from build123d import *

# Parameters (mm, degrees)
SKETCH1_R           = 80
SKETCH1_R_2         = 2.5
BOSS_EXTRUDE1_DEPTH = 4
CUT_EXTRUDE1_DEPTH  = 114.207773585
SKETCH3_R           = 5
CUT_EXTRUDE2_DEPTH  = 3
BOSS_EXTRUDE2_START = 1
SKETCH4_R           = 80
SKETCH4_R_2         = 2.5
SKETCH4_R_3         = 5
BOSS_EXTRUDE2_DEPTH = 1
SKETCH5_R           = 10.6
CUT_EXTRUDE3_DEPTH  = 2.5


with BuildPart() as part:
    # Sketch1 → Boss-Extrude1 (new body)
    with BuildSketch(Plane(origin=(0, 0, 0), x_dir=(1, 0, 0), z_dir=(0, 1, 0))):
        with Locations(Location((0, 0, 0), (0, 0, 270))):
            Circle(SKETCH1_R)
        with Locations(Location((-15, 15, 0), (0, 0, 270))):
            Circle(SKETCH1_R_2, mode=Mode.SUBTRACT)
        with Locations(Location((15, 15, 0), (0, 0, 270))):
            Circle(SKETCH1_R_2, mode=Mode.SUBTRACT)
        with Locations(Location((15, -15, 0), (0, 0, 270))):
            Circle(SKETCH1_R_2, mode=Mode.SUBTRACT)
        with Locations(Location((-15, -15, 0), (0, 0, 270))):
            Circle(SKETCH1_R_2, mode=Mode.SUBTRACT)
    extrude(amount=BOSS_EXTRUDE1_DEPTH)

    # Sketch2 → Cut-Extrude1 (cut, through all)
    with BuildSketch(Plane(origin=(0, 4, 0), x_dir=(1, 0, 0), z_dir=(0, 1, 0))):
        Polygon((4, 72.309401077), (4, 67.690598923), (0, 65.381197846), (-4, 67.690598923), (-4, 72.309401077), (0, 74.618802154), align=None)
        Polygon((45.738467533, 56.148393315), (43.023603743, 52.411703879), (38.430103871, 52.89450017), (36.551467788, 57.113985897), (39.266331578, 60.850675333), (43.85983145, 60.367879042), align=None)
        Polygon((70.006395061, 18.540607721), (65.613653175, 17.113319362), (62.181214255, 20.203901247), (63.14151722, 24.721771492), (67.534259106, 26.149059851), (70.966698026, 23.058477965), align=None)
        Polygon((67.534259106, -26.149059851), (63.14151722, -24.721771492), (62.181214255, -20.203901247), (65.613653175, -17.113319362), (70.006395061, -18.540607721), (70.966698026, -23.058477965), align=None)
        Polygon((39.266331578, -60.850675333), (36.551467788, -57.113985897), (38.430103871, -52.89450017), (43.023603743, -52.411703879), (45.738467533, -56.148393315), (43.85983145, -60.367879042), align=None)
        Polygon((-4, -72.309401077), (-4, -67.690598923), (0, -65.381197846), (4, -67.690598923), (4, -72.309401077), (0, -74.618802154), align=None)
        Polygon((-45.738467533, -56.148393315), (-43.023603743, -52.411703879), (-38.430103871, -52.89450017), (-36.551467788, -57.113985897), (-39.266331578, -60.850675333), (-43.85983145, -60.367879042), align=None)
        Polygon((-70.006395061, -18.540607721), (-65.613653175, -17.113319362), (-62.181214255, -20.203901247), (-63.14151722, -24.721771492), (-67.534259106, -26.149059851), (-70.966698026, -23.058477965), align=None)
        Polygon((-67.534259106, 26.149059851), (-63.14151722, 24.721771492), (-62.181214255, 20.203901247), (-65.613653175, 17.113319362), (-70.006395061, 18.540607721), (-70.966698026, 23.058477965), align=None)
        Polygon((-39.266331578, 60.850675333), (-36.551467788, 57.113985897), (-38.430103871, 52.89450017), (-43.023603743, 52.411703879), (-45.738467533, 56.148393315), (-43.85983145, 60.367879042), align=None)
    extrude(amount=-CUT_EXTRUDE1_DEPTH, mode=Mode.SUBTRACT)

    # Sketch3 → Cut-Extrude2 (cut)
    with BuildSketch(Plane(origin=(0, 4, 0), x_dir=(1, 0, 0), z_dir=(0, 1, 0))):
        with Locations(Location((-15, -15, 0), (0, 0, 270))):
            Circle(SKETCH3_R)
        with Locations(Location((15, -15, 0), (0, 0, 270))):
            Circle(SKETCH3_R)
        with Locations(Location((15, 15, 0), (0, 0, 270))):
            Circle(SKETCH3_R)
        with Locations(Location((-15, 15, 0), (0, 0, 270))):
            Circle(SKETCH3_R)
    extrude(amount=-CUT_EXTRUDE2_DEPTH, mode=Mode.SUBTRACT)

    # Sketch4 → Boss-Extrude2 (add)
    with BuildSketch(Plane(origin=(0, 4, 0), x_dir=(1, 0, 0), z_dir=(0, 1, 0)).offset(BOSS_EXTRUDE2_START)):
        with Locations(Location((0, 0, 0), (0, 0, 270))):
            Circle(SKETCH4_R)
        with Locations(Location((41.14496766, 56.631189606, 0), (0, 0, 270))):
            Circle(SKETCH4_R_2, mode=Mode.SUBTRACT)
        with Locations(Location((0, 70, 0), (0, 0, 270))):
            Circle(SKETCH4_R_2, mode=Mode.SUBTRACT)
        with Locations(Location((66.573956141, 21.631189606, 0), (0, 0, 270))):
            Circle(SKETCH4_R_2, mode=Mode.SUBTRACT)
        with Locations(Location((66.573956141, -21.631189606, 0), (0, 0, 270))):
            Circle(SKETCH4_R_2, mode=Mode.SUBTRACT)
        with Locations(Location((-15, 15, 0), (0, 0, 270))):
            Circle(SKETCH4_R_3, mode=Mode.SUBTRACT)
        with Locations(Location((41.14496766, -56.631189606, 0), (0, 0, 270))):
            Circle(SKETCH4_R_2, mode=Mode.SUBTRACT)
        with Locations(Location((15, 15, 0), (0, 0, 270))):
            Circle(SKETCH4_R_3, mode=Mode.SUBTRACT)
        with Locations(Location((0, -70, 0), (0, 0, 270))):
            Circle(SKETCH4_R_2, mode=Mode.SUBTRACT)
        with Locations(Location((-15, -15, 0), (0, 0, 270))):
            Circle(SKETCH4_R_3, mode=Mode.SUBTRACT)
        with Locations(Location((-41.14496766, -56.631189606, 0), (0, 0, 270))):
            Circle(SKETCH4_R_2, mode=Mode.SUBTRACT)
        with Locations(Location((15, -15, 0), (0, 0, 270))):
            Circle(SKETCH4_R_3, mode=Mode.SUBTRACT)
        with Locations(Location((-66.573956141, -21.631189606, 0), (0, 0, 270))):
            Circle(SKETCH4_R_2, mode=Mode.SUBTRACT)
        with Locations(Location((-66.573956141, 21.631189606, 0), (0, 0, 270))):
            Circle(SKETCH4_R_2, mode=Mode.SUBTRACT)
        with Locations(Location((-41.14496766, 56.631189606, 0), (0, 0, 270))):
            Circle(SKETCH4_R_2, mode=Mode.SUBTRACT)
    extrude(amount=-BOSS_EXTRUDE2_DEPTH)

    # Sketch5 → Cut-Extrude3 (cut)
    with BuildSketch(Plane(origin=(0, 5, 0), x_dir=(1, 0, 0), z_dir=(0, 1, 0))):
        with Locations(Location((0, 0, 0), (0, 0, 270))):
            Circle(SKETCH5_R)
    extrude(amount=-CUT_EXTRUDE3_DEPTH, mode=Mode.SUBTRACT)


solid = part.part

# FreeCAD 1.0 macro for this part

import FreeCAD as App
import Part
import Sketcher
from FreeCAD import Vector
Q = App.Units.Quantity


def add_polygon(sketch, points):
    """Adds a closed chain of lines whose ends are joined by coincident constraints."""
    first, n = sketch.GeometryCount, len(points)
    for a, b in zip(points, points[1:] + points[:1]):
        sketch.addGeometry(Part.LineSegment(App.Vector(*a, 0), App.Vector(*b, 0)), False)
    for i in range(n):
        sketch.addConstraint(Sketcher.Constraint("Coincident", first + i, 2, first + (i + 1) % n, 1))

doc = App.newDocument("Part")
body = doc.addObject("PartDesign::Body", "Body")

# Sketch on XZ plane
sketch1 = body.newObject("Sketcher::SketchObject", "Sketch")
sketch1.AttachmentSupport = (doc.getObject("XZ_Plane"), [""])
sketch1.MapMode = "FlatFace"
sketch1.addGeometry(Part.Circle(Vector(0, 0, 0), Vector(0, 0, 1), 80), False)
sketch1.addGeometry(Part.Circle(Vector(-15, -15, 0), Vector(0, 0, 1), 2.5), False)
sketch1.addGeometry(Part.Circle(Vector(-15, 15, 0), Vector(0, 0, 1), 2.5), False)
sketch1.addGeometry(Part.Circle(Vector(15, -15, 0), Vector(0, 0, 1), 2.5), False)
sketch1.addGeometry(Part.Circle(Vector(15, 15, 0), Vector(0, 0, 1), 2.5), False)
sketch1.addConstraint(Sketcher.Constraint("Coincident", 0, 3, -1, 1))
sketch1.addConstraint(Sketcher.Constraint("Equal", 1, 2))
sketch1.addConstraint(Sketcher.Constraint("Equal", 2, 3))
sketch1.addConstraint(Sketcher.Constraint("Equal", 3, 4))
sketch1.addConstraint(Sketcher.Constraint("Symmetric", 2, 3, 3, 3, -1, 1))
sketch1.addConstraint(Sketcher.Constraint("Symmetric", 1, 3, 4, 3, -1, 1))
sketch1.addConstraint(Sketcher.Constraint("Symmetric", 1, 3, 3, 3, -2))
sketch1.addConstraint(Sketcher.Constraint("Diameter", 0, 160.0))
sketch1.addConstraint(Sketcher.Constraint("Diameter", 1, 5.0))
sketch1.addConstraint(Sketcher.Constraint("DistanceX", 1, 3, -1, 1, 15.0))
sketch1.addConstraint(Sketcher.Constraint("DistanceY", 1, 3, -1, 1, 15.0))
pad1 = body.newObject("PartDesign::Pad", "Pad")
pad1.Profile = sketch1
pad1.Length = 4
pad1.Reversed = True

# Sketch on XZ plane
sketch2 = body.newObject("Sketcher::SketchObject", "Sketch001")
sketch2.AttachmentSupport = (doc.getObject("XZ_Plane"), [""])
sketch2.MapMode = "FlatFace"
sketch2.AttachmentOffset = App.Placement(Vector(0, 0, -4), App.Rotation())
add_polygon(sketch2, [(4, -67.690599), (4, -72.309401), (0, -74.618802), (-4, -72.309401), (-4, -67.690599), (0, -65.381198)])  # lines 0-5
add_polygon(sketch2, [(43.023604, -52.411704), (45.738468, -56.148393), (43.859831, -60.367879), (39.266332, -60.850675), (36.551468, -57.113986), (38.430104, -52.8945)])  # lines 6-11
add_polygon(sketch2, [(65.613653, -17.113319), (70.006395, -18.540608), (70.966698, -23.058478), (67.534259, -26.14906), (63.141517, -24.721771), (62.181214, -20.203901)])  # lines 12-17
add_polygon(sketch2, [(63.141517, 24.721771), (67.534259, 26.14906), (70.966698, 23.058478), (70.006395, 18.540608), (65.613653, 17.113319), (62.181214, 20.203901)])  # lines 18-23
add_polygon(sketch2, [(36.551468, 57.113986), (39.266332, 60.850675), (43.859831, 60.367879), (45.738468, 56.148393), (43.023604, 52.411704), (38.430104, 52.8945)])  # lines 24-29
add_polygon(sketch2, [(-4, 67.690599), (-4, 72.309401), (0, 74.618802), (4, 72.309401), (4, 67.690599), (0, 65.381198)])  # lines 30-35
add_polygon(sketch2, [(-43.023604, 52.411704), (-45.738468, 56.148393), (-43.859831, 60.367879), (-39.266332, 60.850675), (-36.551468, 57.113986), (-38.430104, 52.8945)])  # lines 36-41
add_polygon(sketch2, [(-65.613653, 17.113319), (-70.006395, 18.540608), (-70.966698, 23.058478), (-67.534259, 26.14906), (-63.141517, 24.721771), (-62.181214, 20.203901)])  # lines 42-47
add_polygon(sketch2, [(-63.141517, -24.721771), (-67.534259, -26.14906), (-70.966698, -23.058478), (-70.006395, -18.540608), (-65.613653, -17.113319), (-62.181214, -20.203901)])  # lines 48-53
add_polygon(sketch2, [(-36.551468, -57.113986), (-39.266332, -60.850675), (-43.859831, -60.367879), (-45.738468, -56.148393), (-43.023604, -52.411704), (-38.430104, -52.8945)])  # lines 54-59
sketch2.addConstraint(Sketcher.Constraint("Vertical", 0))
sketch2.addConstraint(Sketcher.Constraint("Vertical", 3))
sketch2.addConstraint(Sketcher.Constraint("Vertical", 30))
sketch2.addConstraint(Sketcher.Constraint("Vertical", 33))
sketch2.addConstraint(Sketcher.Constraint("Symmetric", 0, 2, 30, 2, -1, 1))
sketch2.addConstraint(Sketcher.Constraint("Symmetric", 1, 2, 31, 2, -1, 1))
sketch2.addConstraint(Sketcher.Constraint("Symmetric", 2, 2, 32, 2, -1, 1))
sketch2.addConstraint(Sketcher.Constraint("Symmetric", 4, 2, 34, 2, -1, 1))
sketch2.addConstraint(Sketcher.Constraint("Symmetric", 6, 2, 36, 2, -1, 1))
sketch2.addConstraint(Sketcher.Constraint("Symmetric", 7, 2, 37, 2, -1, 1))
sketch2.addConstraint(Sketcher.Constraint("Symmetric", 8, 2, 38, 2, -1, 1))
sketch2.addConstraint(Sketcher.Constraint("Symmetric", 9, 2, 39, 2, -1, 1))
sketch2.addConstraint(Sketcher.Constraint("Symmetric", 10, 2, 40, 2, -1, 1))
sketch2.addConstraint(Sketcher.Constraint("Symmetric", 11, 2, 41, 2, -1, 1))
sketch2.addConstraint(Sketcher.Constraint("Symmetric", 12, 2, 42, 2, -1, 1))
sketch2.addConstraint(Sketcher.Constraint("Symmetric", 13, 2, 43, 2, -1, 1))
sketch2.addConstraint(Sketcher.Constraint("Symmetric", 14, 2, 44, 2, -1, 1))
sketch2.addConstraint(Sketcher.Constraint("Symmetric", 15, 2, 45, 2, -1, 1))
sketch2.addConstraint(Sketcher.Constraint("Symmetric", 16, 2, 46, 2, -1, 1))
sketch2.addConstraint(Sketcher.Constraint("Symmetric", 17, 2, 47, 2, -1, 1))
sketch2.addConstraint(Sketcher.Constraint("Symmetric", 18, 2, 48, 2, -1, 1))
sketch2.addConstraint(Sketcher.Constraint("Symmetric", 19, 2, 49, 2, -1, 1))
sketch2.addConstraint(Sketcher.Constraint("Symmetric", 20, 2, 50, 2, -1, 1))
sketch2.addConstraint(Sketcher.Constraint("Symmetric", 21, 2, 51, 2, -1, 1))
sketch2.addConstraint(Sketcher.Constraint("Symmetric", 22, 2, 52, 2, -1, 1))
sketch2.addConstraint(Sketcher.Constraint("Symmetric", 23, 2, 53, 2, -1, 1))
sketch2.addConstraint(Sketcher.Constraint("Symmetric", 24, 2, 54, 2, -1, 1))
sketch2.addConstraint(Sketcher.Constraint("Symmetric", 25, 2, 55, 2, -1, 1))
sketch2.addConstraint(Sketcher.Constraint("Symmetric", 26, 2, 56, 2, -1, 1))
sketch2.addConstraint(Sketcher.Constraint("Symmetric", 27, 2, 57, 2, -1, 1))
sketch2.addConstraint(Sketcher.Constraint("Symmetric", 28, 2, 58, 2, -1, 1))
sketch2.addConstraint(Sketcher.Constraint("Symmetric", 29, 2, 59, 2, -1, 1))
sketch2.addConstraint(Sketcher.Constraint("Symmetric", 0, 2, 2, 2, -2))
sketch2.addConstraint(Sketcher.Constraint("Symmetric", 26, 2, 36, 2, -2))
sketch2.addConstraint(Sketcher.Constraint("Symmetric", 25, 2, 37, 2, -2))
sketch2.addConstraint(Sketcher.Constraint("Symmetric", 24, 2, 38, 2, -2))
sketch2.addConstraint(Sketcher.Constraint("Symmetric", 29, 2, 39, 2, -2))
sketch2.addConstraint(Sketcher.Constraint("Symmetric", 28, 2, 40, 2, -2))
sketch2.addConstraint(Sketcher.Constraint("Symmetric", 27, 2, 41, 2, -2))
sketch2.addConstraint(Sketcher.Constraint("Symmetric", 20, 2, 42, 2, -2))
sketch2.addConstraint(Sketcher.Constraint("Symmetric", 19, 2, 43, 2, -2))
sketch2.addConstraint(Sketcher.Constraint("Symmetric", 18, 2, 44, 2, -2))
sketch2.addConstraint(Sketcher.Constraint("Symmetric", 23, 2, 45, 2, -2))
sketch2.addConstraint(Sketcher.Constraint("Symmetric", 22, 2, 46, 2, -2))
sketch2.addConstraint(Sketcher.Constraint("Symmetric", 21, 2, 47, 2, -2))
sketch2.addConstraint(Sketcher.Constraint("PointOnObject", 1, 2, -2))
sketch2.addConstraint(Sketcher.Constraint("PointOnObject", 4, 2, -2))
sketch2.addConstraint(Sketcher.Constraint("Parallel", 1, 4))
sketch2.addConstraint(Sketcher.Constraint("Parallel", 2, 5))
sketch2.addConstraint(Sketcher.Constraint("Parallel", 6, 9))
sketch2.addConstraint(Sketcher.Constraint("Parallel", 7, 10))
sketch2.addConstraint(Sketcher.Constraint("Parallel", 8, 11))
sketch2.addConstraint(Sketcher.Constraint("Parallel", 12, 15))
sketch2.addConstraint(Sketcher.Constraint("Parallel", 13, 16))
sketch2.addConstraint(Sketcher.Constraint("Parallel", 14, 17))
sketch2.addConstraint(Sketcher.Constraint("Parallel", 31, 34))
sketch2.addConstraint(Sketcher.Constraint("Parallel", 32, 35))
sketch2.addConstraint(Sketcher.Constraint("Equal", 5, 6))
sketch2.addConstraint(Sketcher.Constraint("Equal", 6, 7))
sketch2.addConstraint(Sketcher.Constraint("Equal", 7, 8))
sketch2.addConstraint(Sketcher.Constraint("Equal", 8, 9))
sketch2.addConstraint(Sketcher.Constraint("Equal", 11, 12))
sketch2.addConstraint(Sketcher.Constraint("Equal", 12, 13))
sketch2.addConstraint(Sketcher.Constraint("Equal", 13, 14))
sketch2.addConstraint(Sketcher.Constraint("Equal", 14, 15))
sketch2.addConstraint(Sketcher.Constraint("Angle", 1, Q("-150 deg")))
sketch2.addConstraint(Sketcher.Constraint("Angle", 6, Q("-54 deg")))
sketch2.addConstraint(Sketcher.Constraint("Angle", 7, Q("-114 deg")))
sketch2.addConstraint(Sketcher.Constraint("Angle", 8, Q("-174 deg")))
sketch2.addConstraint(Sketcher.Constraint("Angle", 12, Q("-18 deg")))
sketch2.addConstraint(Sketcher.Constraint("Angle", 13, Q("-78 deg")))
sketch2.addConstraint(Sketcher.Constraint("Angle", 14, Q("-138 deg")))
sketch2.addConstraint(Sketcher.Constraint("DistanceX", -1, 1, 0, 2, 4.0))
sketch2.addConstraint(Sketcher.Constraint("DistanceY", 0, 2, -1, 1, 72.309401))
sketch2.addConstraint(Sketcher.Constraint("DistanceY", 3, 2, -1, 1, 67.690599))
sketch2.addConstraint(Sketcher.Constraint("DistanceY", 10, 2, -1, 1, 52.8945))
sketch2.addConstraint(Sketcher.Constraint("DistanceX", -1, 1, 13, 2, 70.966698))
sketch2.addConstraint(Sketcher.Constraint("DistanceY", 16, 2, -1, 1, 20.203901))
sketch2.addConstraint(Sketcher.Constraint("DistanceX", -1, 1, 7, 2, 43.859831))
pocket1 = body.newObject("PartDesign::Pocket", "Pocket")
pocket1.Profile = sketch2
pocket1.Type = "ThroughAll"
pocket1.Reversed = True

# Sketch on XZ plane
sketch3 = body.newObject("Sketcher::SketchObject", "Sketch002")
sketch3.AttachmentSupport = (doc.getObject("XZ_Plane"), [""])
sketch3.MapMode = "FlatFace"
sketch3.AttachmentOffset = App.Placement(Vector(0, 0, -4), App.Rotation())
sketch3.addGeometry(Part.Circle(Vector(-15, 15, 0), Vector(0, 0, 1), 5), False)
sketch3.addGeometry(Part.Circle(Vector(15, 15, 0), Vector(0, 0, 1), 5), False)
sketch3.addGeometry(Part.Circle(Vector(15, -15, 0), Vector(0, 0, 1), 5), False)
sketch3.addGeometry(Part.Circle(Vector(-15, -15, 0), Vector(0, 0, 1), 5), False)
sketch3.addConstraint(Sketcher.Constraint("Equal", 0, 1))
sketch3.addConstraint(Sketcher.Constraint("Equal", 1, 2))
sketch3.addConstraint(Sketcher.Constraint("Equal", 2, 3))
sketch3.addConstraint(Sketcher.Constraint("Symmetric", 0, 3, 2, 3, -1, 1))
sketch3.addConstraint(Sketcher.Constraint("Symmetric", 1, 3, 3, 3, -1, 1))
sketch3.addConstraint(Sketcher.Constraint("Symmetric", 0, 3, 1, 3, -2))
sketch3.addConstraint(Sketcher.Constraint("Diameter", 0, 10.0))
sketch3.addConstraint(Sketcher.Constraint("DistanceX", 0, 3, -1, 1, 15.0))
sketch3.addConstraint(Sketcher.Constraint("DistanceY", -1, 1, 0, 3, 15.0))
pocket2 = body.newObject("PartDesign::Pocket", "Pocket001")
pocket2.Profile = sketch3
pocket2.Length = 3
pocket2.Reversed = True

# Sketch on XZ plane
sketch4 = body.newObject("Sketcher::SketchObject", "Sketch003")
sketch4.AttachmentSupport = (doc.getObject("XZ_Plane"), [""])
sketch4.MapMode = "FlatFace"
sketch4.AttachmentOffset = App.Placement(Vector(0, 0, -5), App.Rotation())
sketch4.addGeometry(Part.Circle(Vector(0, 0, 0), Vector(0, 0, 1), 80), False)
sketch4.addGeometry(Part.Circle(Vector(-41.144968, -56.63119, 0), Vector(0, 0, 1), 2.5), False)
sketch4.addGeometry(Part.Circle(Vector(-66.573956, -21.63119, 0), Vector(0, 0, 1), 2.5), False)
sketch4.addGeometry(Part.Circle(Vector(0, -70, 0), Vector(0, 0, 1), 2.5), False)
sketch4.addGeometry(Part.Circle(Vector(-15, -15, 0), Vector(0, 0, 1), 5), False)
sketch4.addGeometry(Part.Circle(Vector(-66.573956, 21.63119, 0), Vector(0, 0, 1), 2.5), False)
sketch4.addGeometry(Part.Circle(Vector(-41.144968, 56.63119, 0), Vector(0, 0, 1), 2.5), False)
sketch4.addGeometry(Part.Circle(Vector(-15, 15, 0), Vector(0, 0, 1), 5), False)
sketch4.addGeometry(Part.Circle(Vector(15, -15, 0), Vector(0, 0, 1), 5), False)
sketch4.addGeometry(Part.Circle(Vector(41.144968, -56.63119, 0), Vector(0, 0, 1), 2.5), False)
sketch4.addGeometry(Part.Circle(Vector(66.573956, -21.63119, 0), Vector(0, 0, 1), 2.5), False)
sketch4.addGeometry(Part.Circle(Vector(15, 15, 0), Vector(0, 0, 1), 5), False)
sketch4.addGeometry(Part.Circle(Vector(0, 70, 0), Vector(0, 0, 1), 2.5), False)
sketch4.addGeometry(Part.Circle(Vector(66.573956, 21.63119, 0), Vector(0, 0, 1), 2.5), False)
sketch4.addGeometry(Part.Circle(Vector(41.144968, 56.63119, 0), Vector(0, 0, 1), 2.5), False)
sketch4.addConstraint(Sketcher.Constraint("Coincident", 0, 3, -1, 1))
sketch4.addConstraint(Sketcher.Constraint("Equal", 1, 2))
sketch4.addConstraint(Sketcher.Constraint("Equal", 2, 3))
sketch4.addConstraint(Sketcher.Constraint("Equal", 3, 5))
sketch4.addConstraint(Sketcher.Constraint("Equal", 5, 6))
sketch4.addConstraint(Sketcher.Constraint("Equal", 4, 7))
sketch4.addConstraint(Sketcher.Constraint("Equal", 7, 8))
sketch4.addConstraint(Sketcher.Constraint("Equal", 6, 9))
sketch4.addConstraint(Sketcher.Constraint("Equal", 9, 10))
sketch4.addConstraint(Sketcher.Constraint("Equal", 8, 11))
sketch4.addConstraint(Sketcher.Constraint("Equal", 10, 12))
sketch4.addConstraint(Sketcher.Constraint("Equal", 12, 13))
sketch4.addConstraint(Sketcher.Constraint("Equal", 13, 14))
sketch4.addConstraint(Sketcher.Constraint("Symmetric", 7, 3, 8, 3, -1, 1))
sketch4.addConstraint(Sketcher.Constraint("Symmetric", 6, 3, 9, 3, -1, 1))
sketch4.addConstraint(Sketcher.Constraint("Symmetric", 5, 3, 10, 3, -1, 1))
sketch4.addConstraint(Sketcher.Constraint("Symmetric", 4, 3, 11, 3, -1, 1))
sketch4.addConstraint(Sketcher.Constraint("Symmetric", 3, 3, 12, 3, -1, 1))
sketch4.addConstraint(Sketcher.Constraint("Symmetric", 2, 3, 13, 3, -1, 1))
sketch4.addConstraint(Sketcher.Constraint("Symmetric", 1, 3, 14, 3, -1, 1))
sketch4.addConstraint(Sketcher.Constraint("Symmetric", 4, 3, 8, 3, -2))
sketch4.addConstraint(Sketcher.Constraint("Symmetric", 1, 3, 9, 3, -2))
sketch4.addConstraint(Sketcher.Constraint("Symmetric", 2, 3, 10, 3, -2))
sketch4.addConstraint(Sketcher.Constraint("PointOnObject", 3, 3, -2))
sketch4.addConstraint(Sketcher.Constraint("Diameter", 0, 160.0))
sketch4.addConstraint(Sketcher.Constraint("Diameter", 1, 5.0))
sketch4.addConstraint(Sketcher.Constraint("Diameter", 4, 10.0))
sketch4.addConstraint(Sketcher.Constraint("DistanceY", 3, 3, -1, 1, 70.0))
sketch4.addConstraint(Sketcher.Constraint("DistanceX", 4, 3, -1, 1, 15.0))
sketch4.addConstraint(Sketcher.Constraint("DistanceY", 4, 3, -1, 1, 15.0))
sketch4.addConstraint(Sketcher.Constraint("DistanceY", 1, 3, 2, 3, 35.0))
sketch4.addConstraint(Sketcher.Constraint("DistanceY", 1, 3, -1, 1, 56.63119))
sketch4.addConstraint(Sketcher.Constraint("DistanceX", 2, 3, 1, 3, 25.428988))
sketch4.addConstraint(Sketcher.Constraint("DistanceX", 1, 3, -1, 1, 41.144968))
pad2 = body.newObject("PartDesign::Pad", "Pad001")
pad2.Profile = sketch4
pad2.Length = 1

# Sketch on XZ plane
sketch5 = body.newObject("Sketcher::SketchObject", "Sketch004")
sketch5.AttachmentSupport = (doc.getObject("XZ_Plane"), [""])
sketch5.MapMode = "FlatFace"
sketch5.AttachmentOffset = App.Placement(Vector(0, 0, -5), App.Rotation())
sketch5.addGeometry(Part.Circle(Vector(0, 0, 0), Vector(0, 0, 1), 10.6), False)
sketch5.addConstraint(Sketcher.Constraint("Coincident", 0, 3, -1, 1))
sketch5.addConstraint(Sketcher.Constraint("Diameter", 0, 21.2))
pocket3 = body.newObject("PartDesign::Pocket", "Pocket002")
pocket3.Profile = sketch5
pocket3.Length = 2.5
pocket3.Reversed = True

doc.recompute()
